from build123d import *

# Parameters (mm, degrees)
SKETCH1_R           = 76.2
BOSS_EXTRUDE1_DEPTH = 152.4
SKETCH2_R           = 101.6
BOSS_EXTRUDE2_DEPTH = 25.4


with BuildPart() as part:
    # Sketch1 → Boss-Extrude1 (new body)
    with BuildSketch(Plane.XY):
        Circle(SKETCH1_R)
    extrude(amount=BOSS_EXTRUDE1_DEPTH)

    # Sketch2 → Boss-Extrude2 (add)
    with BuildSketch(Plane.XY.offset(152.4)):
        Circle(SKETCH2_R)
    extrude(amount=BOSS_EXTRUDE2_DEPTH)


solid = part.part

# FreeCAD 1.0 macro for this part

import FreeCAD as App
import Part
import Sketcher
from FreeCAD import Vector
Q = App.Units.Quantity

doc = App.newDocument("Part")
body = doc.addObject("PartDesign::Body", "Body")

# Sketch on XY plane
sketch1 = body.newObject("Sketcher::SketchObject", "Sketch")
sketch1.AttachmentSupport = (doc.getObject("XY_Plane"), [""])
sketch1.MapMode = "FlatFace"
sketch1.addGeometry(Part.Circle(Vector(0, 0, 0), Vector(0, 0, 1), 76), False)
sketch1.addConstraint([
    Sketcher.Constraint("Coincident", 0, 3, -1, 1),
    Sketcher.Constraint("Diameter", 0, Q("6 in")),
])
pad1 = body.newObject("PartDesign::Pad", "Pad")
pad1.Profile = sketch1
pad1.Length = Q("6 in")

# Sketch on XY plane
sketch2 = body.newObject("Sketcher::SketchObject", "Sketch001")
sketch2.AttachmentSupport = (doc.getObject("XY_Plane"), [""])
sketch2.MapMode = "FlatFace"
sketch2.AttachmentOffset = App.Placement(Vector(0, 0, 6 * 25.4), App.Rotation())
sketch2.addGeometry(Part.Circle(Vector(0, 0, 0), Vector(0, 0, 1), 102), False)
sketch2.addConstraint([
    Sketcher.Constraint("Coincident", 0, 3, -1, 1),
    Sketcher.Constraint("Diameter", 0, Q("8 in")),
])
pad2 = body.newObject("PartDesign::Pad", "Pad001")
pad2.Profile = sketch2
pad2.Length = Q("1 in")

doc.recompute()
